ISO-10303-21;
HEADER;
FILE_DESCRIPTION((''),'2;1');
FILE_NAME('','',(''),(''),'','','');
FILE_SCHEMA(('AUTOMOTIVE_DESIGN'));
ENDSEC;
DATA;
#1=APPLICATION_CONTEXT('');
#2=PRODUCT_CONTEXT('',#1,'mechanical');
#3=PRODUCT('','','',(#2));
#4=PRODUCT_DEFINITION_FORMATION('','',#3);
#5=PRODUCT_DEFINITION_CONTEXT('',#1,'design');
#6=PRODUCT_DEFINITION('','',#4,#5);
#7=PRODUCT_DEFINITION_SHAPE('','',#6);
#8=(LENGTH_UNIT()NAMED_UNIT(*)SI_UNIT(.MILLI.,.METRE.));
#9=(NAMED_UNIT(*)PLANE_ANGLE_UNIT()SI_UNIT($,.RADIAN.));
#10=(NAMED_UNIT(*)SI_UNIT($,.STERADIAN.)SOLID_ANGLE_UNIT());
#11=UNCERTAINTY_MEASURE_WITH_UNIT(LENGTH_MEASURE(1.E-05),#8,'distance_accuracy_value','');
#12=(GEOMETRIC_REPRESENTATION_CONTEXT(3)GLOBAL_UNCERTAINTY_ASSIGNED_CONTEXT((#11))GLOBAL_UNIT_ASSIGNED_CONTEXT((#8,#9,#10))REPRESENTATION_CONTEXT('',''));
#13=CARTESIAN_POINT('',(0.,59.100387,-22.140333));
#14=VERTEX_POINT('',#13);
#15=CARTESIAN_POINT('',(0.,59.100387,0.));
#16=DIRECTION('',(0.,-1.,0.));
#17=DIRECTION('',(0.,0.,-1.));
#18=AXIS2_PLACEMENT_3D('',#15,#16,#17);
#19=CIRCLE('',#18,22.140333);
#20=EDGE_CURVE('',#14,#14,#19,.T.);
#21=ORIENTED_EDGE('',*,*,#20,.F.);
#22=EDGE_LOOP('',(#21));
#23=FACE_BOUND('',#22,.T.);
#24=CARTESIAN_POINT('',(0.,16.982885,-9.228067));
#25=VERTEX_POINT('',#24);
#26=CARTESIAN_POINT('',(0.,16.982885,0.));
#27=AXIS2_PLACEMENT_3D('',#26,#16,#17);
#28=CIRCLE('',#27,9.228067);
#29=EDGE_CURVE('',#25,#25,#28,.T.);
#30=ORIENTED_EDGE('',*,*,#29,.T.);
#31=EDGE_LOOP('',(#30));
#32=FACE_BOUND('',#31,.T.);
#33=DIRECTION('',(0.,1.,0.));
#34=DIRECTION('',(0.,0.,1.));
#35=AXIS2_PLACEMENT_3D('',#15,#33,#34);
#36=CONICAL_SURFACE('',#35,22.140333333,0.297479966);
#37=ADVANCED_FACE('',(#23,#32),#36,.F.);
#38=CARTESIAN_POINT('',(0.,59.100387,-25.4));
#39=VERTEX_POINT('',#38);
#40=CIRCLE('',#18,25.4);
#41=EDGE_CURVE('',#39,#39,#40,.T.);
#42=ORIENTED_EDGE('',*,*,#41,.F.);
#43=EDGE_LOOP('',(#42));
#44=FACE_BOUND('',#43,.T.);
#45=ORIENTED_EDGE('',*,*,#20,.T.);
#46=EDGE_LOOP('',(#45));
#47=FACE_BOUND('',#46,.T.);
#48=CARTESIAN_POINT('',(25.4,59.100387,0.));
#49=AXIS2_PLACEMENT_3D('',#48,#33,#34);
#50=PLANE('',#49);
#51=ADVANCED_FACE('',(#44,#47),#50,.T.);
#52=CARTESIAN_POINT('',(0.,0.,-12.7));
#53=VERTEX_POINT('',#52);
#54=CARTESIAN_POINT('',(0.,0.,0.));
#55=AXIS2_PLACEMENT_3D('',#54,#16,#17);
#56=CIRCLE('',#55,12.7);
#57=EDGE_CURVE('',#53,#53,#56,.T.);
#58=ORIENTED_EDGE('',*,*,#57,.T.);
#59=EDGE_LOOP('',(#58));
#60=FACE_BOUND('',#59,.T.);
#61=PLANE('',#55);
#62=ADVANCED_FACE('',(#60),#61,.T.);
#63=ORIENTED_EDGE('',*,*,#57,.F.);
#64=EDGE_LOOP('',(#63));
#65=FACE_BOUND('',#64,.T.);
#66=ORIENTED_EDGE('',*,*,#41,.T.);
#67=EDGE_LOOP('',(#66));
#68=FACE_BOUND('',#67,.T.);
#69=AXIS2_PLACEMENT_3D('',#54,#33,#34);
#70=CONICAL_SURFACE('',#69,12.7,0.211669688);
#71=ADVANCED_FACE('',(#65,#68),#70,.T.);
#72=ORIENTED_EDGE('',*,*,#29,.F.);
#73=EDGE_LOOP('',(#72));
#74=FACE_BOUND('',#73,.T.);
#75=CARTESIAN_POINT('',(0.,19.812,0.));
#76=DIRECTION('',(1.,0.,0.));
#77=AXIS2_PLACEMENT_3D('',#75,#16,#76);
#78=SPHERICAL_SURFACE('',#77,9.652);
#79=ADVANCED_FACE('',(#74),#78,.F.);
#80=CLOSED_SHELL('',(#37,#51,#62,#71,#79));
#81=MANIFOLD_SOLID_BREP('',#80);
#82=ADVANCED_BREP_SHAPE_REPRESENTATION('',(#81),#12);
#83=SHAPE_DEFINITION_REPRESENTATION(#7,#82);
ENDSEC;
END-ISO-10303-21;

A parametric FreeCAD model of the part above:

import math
import FreeCAD as App
import Part
import Sketcher
from FreeCAD import Vector
Q = App.Units.Quantity

doc = App.newDocument("Part")
params = doc.addObject("Spreadsheet::Sheet", "Params")
for row, (alias, value) in enumerate([
    ("sketch1_radius", "0.38 in"),
    ("sketch1_width", "0.5 in"),
    ("sketch1_height", "0.4 in"),
    ("revolution_angle", "360 deg"),
], start=1):
    params.set(f"A{row}", alias)
    params.set(f"B{row}", "=" + value)
    params.setAlias(f"B{row}", alias)

body = doc.addObject("PartDesign::Body", "Body")

# Sketch on XY plane
sketch1 = body.newObject("Sketcher::SketchObject", "Sketch")
sketch1.AttachmentSupport = (doc.getObject("XY_Plane"), [""])
sketch1.MapMode = "FlatFace"
sketch1.addGeometry([
    Part.LineSegment(Vector(0, 0, 0), Vector(12.7, 0, 0)),  # 0
    Part.LineSegment(Vector(12.7, 0, 0), Vector(25.4, 59.100387, 0)),  # 1
    Part.LineSegment(Vector(25.4, 59.100387, 0), Vector(22.140333, 59.100387, 0)),  # 2
    Part.LineSegment(Vector(22.140333, 59.100387, 0), Vector(9.228067, 16.982885, 0)),  # 3
    Part.ArcOfCircle(Part.Circle(Vector(0, 19.812, 0), Vector(0, 0, 1), 9.652), math.radians(-90), math.radians(-17.044347)),  # 4
    Part.LineSegment(Vector(0, 10.16, 0), Vector(0, 0, 0)),  # 5
], False)
sketch1.addConstraint([
    Sketcher.Constraint("Coincident", 0, 2, 1, 1),
    Sketcher.Constraint("Coincident", 1, 2, 2, 1),
    Sketcher.Constraint("Coincident", 2, 2, 3, 1),
    Sketcher.Constraint("Tangent", 3, 2, 4, 2),
    Sketcher.Constraint("Coincident", 4, 1, 5, 1),
    Sketcher.Constraint("Coincident", 5, 2, 0, 1),
    Sketcher.Constraint("Horizontal", 0),
    Sketcher.Constraint("Horizontal", 2),
    Sketcher.Constraint("Vertical", 5),
    Sketcher.Constraint("Coincident", 5, 2, -1, 1),
    Sketcher.Constraint("PointOnObject", 4, 3, -2),
    Sketcher.Constraint("Radius", 4, Q("0.38 in")),
    Sketcher.Constraint("DistanceX", 0, 1, 0, 2, Q("0.5 in")),
    Sketcher.Constraint("DistanceY", 5, 2, 5, 1, Q("0.4 in")),
    Sketcher.Constraint("DistanceX", -1, 1, 1, 2, Q("1 in")),
    Sketcher.Constraint("Distance", 1, Q("60.449531 mm")),
    Sketcher.Constraint("DistanceX", 2, 2, 2, 1, Q("3.259667 mm")),
])
sketch1.setExpression("Constraints[11]", "Params.sketch1_radius")
sketch1.setExpression("Constraints[12]", "Params.sketch1_width")
sketch1.setExpression("Constraints[13]", "Params.sketch1_height")
revolution = body.newObject("PartDesign::Revolution", "Revolution")
revolution.Profile = sketch1
revolution.ReferenceAxis = (sketch1, ["V_Axis"])
revolution.setExpression("Angle", "Params.revolution_angle")

doc.recompute()
